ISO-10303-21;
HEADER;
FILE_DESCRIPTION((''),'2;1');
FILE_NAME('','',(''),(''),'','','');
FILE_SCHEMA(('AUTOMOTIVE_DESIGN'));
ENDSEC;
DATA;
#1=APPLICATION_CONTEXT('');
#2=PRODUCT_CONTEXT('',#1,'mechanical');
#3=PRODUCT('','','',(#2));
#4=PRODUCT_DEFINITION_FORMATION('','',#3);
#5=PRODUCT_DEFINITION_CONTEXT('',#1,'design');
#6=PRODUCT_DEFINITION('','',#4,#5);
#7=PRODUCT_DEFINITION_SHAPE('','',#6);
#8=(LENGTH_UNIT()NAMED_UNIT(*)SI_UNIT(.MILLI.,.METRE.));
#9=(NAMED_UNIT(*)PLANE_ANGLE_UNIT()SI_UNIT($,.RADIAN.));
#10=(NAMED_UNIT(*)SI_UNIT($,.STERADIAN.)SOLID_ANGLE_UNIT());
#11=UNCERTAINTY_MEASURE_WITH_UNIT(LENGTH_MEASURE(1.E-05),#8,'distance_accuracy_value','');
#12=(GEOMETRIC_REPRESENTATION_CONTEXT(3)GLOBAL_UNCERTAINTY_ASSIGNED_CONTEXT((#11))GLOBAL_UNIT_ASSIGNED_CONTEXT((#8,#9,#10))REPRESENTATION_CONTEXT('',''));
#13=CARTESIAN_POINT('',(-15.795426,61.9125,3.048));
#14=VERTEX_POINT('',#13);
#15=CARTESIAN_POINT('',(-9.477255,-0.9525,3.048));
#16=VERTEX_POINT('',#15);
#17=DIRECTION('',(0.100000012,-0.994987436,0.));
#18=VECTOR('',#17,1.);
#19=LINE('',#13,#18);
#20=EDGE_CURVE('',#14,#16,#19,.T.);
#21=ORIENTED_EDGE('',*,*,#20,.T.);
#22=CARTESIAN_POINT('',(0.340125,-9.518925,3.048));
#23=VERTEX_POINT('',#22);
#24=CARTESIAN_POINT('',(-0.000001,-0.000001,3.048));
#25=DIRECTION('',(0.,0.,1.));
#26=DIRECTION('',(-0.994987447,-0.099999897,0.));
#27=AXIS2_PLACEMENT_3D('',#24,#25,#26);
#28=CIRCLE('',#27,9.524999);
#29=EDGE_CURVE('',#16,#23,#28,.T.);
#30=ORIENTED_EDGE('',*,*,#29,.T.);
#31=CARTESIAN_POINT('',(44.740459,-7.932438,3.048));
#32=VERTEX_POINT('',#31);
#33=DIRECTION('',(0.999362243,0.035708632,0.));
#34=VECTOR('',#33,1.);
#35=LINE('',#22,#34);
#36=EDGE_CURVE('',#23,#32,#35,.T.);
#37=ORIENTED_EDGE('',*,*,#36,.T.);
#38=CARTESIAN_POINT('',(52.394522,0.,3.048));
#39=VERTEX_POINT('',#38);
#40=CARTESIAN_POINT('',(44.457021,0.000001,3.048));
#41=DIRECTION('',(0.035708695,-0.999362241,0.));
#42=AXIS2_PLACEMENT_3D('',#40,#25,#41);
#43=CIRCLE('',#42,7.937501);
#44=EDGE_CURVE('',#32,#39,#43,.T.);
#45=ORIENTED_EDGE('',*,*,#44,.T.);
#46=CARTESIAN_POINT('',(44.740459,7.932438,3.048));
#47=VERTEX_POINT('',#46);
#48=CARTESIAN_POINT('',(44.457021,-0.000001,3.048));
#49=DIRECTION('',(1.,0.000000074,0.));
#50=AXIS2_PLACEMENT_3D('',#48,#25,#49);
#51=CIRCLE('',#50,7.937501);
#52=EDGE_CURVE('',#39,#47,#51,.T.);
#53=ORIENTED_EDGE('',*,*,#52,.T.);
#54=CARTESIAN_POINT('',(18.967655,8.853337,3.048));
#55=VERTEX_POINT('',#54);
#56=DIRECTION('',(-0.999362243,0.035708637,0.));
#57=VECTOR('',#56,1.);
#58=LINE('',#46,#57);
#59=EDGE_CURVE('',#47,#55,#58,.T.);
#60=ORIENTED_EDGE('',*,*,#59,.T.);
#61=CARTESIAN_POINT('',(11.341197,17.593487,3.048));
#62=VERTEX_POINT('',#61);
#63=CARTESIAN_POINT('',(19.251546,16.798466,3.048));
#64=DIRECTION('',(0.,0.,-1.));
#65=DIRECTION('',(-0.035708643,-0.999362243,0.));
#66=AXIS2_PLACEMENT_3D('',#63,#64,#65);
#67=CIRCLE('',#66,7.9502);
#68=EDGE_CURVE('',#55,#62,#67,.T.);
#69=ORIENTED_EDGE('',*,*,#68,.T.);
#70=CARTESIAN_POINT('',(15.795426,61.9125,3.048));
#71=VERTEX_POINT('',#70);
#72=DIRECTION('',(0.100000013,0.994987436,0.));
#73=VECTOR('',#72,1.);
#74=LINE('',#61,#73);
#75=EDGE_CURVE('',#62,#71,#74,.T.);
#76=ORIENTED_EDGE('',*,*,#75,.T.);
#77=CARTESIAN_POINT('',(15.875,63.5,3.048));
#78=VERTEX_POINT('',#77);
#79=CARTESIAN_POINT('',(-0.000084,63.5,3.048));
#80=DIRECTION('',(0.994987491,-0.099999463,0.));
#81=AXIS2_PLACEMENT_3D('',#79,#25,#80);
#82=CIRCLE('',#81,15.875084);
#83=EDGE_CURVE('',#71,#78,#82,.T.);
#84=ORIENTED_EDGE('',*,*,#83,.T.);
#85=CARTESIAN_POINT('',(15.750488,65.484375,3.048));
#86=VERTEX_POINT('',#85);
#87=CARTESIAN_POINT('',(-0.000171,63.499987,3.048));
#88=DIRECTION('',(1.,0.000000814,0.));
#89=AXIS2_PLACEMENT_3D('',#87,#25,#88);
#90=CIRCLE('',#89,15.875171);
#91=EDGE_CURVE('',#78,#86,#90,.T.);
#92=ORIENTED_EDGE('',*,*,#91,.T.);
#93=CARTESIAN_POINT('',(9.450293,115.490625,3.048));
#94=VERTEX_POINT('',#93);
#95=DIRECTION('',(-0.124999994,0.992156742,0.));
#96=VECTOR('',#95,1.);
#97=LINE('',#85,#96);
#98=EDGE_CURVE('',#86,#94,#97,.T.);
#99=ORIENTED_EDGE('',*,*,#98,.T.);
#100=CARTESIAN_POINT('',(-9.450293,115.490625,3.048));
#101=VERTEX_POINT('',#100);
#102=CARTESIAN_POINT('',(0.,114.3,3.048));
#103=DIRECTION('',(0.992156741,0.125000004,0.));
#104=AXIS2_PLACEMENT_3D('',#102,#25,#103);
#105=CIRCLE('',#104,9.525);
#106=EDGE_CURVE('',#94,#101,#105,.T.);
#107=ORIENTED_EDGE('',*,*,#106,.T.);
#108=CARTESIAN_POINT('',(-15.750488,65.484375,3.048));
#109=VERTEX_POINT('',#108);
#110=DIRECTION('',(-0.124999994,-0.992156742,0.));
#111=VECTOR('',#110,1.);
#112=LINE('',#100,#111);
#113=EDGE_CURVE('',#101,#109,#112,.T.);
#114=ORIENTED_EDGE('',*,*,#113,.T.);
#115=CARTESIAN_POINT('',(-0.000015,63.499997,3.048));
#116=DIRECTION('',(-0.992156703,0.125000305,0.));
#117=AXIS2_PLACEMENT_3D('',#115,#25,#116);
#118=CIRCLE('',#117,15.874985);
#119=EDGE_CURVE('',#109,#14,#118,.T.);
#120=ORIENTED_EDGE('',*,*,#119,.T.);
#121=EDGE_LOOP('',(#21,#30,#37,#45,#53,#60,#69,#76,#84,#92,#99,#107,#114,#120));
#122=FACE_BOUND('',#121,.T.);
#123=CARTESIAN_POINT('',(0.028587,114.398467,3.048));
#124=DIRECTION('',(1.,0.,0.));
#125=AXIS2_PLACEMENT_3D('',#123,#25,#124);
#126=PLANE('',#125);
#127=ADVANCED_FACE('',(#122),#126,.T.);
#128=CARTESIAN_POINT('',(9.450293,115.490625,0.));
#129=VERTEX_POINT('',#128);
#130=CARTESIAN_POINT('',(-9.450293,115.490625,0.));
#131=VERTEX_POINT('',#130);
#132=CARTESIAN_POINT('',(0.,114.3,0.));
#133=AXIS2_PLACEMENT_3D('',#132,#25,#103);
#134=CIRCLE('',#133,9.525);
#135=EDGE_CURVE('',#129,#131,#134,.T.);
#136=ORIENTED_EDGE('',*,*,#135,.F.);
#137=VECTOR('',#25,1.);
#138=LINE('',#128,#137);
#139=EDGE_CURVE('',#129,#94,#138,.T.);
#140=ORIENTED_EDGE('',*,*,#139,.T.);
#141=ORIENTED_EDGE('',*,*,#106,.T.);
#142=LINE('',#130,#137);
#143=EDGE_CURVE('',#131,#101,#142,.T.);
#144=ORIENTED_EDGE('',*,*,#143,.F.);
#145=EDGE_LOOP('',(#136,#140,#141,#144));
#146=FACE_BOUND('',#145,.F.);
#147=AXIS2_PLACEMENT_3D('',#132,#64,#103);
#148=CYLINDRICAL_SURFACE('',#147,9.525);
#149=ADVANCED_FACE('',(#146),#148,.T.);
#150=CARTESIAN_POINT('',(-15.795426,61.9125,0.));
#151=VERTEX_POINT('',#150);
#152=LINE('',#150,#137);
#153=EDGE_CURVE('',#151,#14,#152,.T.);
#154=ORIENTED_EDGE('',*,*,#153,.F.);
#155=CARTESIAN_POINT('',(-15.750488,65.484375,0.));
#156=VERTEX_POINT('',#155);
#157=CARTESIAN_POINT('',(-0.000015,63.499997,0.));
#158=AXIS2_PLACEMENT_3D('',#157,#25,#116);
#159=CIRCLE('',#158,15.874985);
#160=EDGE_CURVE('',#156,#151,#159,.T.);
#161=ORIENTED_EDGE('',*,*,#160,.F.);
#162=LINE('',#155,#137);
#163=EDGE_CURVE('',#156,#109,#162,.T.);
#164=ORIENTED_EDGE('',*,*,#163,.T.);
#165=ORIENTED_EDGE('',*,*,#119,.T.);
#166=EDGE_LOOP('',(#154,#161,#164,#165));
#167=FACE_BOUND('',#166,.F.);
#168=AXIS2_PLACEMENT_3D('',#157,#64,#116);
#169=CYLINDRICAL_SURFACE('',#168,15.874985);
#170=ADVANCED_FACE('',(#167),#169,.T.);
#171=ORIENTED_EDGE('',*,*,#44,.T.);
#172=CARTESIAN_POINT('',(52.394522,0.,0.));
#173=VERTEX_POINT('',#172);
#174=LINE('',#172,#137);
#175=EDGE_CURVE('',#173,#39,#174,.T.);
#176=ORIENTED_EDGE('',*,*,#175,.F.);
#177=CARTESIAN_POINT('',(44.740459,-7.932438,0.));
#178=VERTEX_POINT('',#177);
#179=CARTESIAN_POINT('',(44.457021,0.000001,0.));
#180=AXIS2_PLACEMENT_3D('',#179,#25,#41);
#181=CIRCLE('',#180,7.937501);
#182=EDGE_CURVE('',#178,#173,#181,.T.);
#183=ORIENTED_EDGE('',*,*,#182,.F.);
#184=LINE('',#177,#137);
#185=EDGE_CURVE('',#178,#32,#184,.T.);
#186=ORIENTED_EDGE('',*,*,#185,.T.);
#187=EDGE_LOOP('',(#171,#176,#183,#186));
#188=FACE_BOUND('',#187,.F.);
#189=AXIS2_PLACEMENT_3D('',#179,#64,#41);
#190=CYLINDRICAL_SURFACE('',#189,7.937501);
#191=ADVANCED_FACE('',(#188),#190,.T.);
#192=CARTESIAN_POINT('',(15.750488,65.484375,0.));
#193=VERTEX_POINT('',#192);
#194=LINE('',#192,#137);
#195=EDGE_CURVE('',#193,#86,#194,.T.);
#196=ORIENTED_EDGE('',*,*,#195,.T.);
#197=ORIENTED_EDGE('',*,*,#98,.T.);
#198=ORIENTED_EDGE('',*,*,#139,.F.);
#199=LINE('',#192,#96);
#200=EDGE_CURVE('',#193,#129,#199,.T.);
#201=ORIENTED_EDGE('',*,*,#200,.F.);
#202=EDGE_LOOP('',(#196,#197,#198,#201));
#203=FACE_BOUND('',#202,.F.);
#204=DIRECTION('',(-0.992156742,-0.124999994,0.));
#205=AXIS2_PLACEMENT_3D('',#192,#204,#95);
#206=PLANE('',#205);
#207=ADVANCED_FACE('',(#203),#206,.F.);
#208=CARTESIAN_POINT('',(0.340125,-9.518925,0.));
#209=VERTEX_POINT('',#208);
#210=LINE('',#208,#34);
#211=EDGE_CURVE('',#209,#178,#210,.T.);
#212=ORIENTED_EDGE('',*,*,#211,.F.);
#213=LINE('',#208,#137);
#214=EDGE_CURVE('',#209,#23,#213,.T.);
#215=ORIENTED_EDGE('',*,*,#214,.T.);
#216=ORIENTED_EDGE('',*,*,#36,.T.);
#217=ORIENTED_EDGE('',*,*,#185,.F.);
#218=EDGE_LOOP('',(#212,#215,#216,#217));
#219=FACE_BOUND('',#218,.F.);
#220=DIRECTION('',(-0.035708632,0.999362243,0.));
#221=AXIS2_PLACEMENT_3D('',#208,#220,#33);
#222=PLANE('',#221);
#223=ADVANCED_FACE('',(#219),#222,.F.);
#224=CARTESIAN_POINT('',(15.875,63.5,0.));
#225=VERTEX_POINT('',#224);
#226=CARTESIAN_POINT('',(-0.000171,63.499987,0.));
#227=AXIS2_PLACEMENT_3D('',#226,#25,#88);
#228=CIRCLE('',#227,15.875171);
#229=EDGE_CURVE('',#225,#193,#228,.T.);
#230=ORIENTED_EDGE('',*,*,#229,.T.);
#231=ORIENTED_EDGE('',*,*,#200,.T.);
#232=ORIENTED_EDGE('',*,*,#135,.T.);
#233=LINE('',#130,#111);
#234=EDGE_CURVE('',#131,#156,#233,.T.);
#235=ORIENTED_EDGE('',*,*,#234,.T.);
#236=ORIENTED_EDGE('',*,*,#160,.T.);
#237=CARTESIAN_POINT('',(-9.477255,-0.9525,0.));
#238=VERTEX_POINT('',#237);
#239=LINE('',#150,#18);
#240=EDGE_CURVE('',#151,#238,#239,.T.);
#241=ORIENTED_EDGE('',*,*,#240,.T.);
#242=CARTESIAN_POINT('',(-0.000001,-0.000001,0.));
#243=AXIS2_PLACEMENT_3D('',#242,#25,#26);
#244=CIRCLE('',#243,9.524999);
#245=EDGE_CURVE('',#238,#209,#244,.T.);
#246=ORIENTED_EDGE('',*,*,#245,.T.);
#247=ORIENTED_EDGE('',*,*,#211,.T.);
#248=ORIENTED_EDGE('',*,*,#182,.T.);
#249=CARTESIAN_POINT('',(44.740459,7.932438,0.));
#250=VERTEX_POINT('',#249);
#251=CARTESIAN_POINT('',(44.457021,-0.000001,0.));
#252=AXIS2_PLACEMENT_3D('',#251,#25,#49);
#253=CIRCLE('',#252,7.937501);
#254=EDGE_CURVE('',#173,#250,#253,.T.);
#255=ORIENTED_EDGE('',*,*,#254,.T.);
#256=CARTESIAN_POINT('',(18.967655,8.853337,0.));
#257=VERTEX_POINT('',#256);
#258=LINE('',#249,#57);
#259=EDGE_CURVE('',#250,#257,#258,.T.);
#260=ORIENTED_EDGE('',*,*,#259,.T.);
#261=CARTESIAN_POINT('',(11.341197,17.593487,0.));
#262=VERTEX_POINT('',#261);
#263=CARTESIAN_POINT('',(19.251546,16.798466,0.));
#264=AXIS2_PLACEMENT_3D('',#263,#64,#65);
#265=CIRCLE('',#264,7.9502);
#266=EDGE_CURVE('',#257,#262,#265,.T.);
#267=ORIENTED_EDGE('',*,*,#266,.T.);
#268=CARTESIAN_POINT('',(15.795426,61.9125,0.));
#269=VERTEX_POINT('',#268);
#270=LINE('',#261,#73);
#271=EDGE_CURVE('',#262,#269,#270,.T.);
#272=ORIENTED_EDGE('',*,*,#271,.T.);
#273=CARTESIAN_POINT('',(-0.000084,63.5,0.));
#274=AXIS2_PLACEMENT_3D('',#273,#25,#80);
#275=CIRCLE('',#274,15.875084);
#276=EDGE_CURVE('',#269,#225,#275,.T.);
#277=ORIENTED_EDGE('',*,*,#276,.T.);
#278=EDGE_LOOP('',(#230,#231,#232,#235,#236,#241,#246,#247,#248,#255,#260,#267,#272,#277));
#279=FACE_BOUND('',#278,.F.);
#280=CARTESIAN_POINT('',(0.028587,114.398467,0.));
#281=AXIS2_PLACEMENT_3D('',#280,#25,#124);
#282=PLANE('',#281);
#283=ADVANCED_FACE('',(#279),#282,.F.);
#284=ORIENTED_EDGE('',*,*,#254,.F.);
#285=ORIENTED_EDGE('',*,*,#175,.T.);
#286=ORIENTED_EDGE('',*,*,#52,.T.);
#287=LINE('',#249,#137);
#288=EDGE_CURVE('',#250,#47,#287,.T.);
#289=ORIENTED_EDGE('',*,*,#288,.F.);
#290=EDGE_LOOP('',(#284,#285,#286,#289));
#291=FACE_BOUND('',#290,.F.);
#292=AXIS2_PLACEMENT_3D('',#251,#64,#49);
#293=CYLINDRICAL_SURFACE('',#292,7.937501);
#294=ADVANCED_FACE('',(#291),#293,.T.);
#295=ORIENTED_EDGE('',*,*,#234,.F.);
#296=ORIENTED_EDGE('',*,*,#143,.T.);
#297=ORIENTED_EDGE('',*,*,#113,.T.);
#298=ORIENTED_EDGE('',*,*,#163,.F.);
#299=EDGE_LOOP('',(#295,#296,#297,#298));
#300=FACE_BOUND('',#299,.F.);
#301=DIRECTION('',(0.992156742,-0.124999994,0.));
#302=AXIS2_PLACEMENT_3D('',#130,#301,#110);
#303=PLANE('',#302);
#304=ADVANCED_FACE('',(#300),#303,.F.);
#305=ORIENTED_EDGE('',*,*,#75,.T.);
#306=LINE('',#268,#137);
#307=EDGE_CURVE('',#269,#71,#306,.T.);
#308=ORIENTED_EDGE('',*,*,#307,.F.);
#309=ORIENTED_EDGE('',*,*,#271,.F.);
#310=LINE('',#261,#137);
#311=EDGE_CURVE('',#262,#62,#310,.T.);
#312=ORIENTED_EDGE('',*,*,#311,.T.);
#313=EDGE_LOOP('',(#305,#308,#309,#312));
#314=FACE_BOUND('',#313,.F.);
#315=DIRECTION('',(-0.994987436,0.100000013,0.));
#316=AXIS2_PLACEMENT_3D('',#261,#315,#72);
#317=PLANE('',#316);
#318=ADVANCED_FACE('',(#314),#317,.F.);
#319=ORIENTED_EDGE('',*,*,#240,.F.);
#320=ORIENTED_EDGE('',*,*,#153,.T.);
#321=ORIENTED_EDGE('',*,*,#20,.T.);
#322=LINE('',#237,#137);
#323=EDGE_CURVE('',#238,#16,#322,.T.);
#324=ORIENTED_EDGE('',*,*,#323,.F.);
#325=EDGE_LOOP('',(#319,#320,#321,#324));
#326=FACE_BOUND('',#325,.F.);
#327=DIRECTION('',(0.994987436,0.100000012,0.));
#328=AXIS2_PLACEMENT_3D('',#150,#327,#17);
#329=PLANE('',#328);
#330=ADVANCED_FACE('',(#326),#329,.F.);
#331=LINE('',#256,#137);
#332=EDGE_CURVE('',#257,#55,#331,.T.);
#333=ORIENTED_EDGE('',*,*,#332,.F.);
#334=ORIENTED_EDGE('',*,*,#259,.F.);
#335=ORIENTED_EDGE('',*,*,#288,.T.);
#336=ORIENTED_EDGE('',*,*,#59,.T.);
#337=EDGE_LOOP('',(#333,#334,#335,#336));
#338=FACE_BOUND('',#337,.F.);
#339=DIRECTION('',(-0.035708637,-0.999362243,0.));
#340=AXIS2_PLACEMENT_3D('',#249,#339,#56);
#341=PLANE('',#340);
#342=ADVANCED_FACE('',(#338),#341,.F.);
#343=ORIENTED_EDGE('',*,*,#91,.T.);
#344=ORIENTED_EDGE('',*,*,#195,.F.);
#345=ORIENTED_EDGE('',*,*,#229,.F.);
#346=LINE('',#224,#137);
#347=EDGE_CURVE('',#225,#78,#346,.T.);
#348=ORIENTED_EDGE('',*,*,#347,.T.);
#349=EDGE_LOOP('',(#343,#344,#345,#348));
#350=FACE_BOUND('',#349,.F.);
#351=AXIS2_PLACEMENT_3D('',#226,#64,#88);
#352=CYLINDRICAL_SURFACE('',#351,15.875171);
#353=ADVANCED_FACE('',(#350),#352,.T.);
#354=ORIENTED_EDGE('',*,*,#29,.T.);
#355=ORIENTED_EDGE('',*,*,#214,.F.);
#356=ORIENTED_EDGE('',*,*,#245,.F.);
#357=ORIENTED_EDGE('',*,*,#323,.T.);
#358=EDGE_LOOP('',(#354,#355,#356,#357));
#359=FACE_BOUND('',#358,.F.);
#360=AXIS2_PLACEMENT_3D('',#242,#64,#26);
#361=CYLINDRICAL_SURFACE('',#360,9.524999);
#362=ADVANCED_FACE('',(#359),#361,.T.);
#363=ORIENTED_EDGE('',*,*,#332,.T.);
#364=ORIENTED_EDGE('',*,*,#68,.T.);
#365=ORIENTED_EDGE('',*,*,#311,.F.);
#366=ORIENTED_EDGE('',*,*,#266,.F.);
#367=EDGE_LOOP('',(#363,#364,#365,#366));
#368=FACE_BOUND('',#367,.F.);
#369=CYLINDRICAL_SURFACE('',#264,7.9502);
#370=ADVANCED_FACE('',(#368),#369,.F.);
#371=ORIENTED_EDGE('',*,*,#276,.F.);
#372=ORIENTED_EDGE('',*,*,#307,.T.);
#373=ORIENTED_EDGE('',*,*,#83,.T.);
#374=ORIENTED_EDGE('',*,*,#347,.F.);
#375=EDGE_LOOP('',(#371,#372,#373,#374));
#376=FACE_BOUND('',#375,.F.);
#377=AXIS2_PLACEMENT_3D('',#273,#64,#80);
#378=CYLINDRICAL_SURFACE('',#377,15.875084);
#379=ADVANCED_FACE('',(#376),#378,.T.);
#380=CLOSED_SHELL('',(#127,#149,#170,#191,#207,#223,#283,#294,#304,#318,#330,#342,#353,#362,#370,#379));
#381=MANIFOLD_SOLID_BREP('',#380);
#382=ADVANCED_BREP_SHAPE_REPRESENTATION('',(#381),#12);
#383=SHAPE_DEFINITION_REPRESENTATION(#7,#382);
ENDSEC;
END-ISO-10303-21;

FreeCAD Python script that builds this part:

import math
import FreeCAD as App
import Part
import Sketcher
from FreeCAD import Vector
Q = App.Units.Quantity

doc = App.newDocument("Part")
body = doc.addObject("PartDesign::Body", "Body")

# Sketch on XY plane
sketch1 = doc.addObject("Sketcher::SketchObject", "Sketch")
body.addObject(sketch1)
sketch1.AttachmentSupport = (doc.XY_Plane, [""])
sketch1.MapMode = "FlatFace"
sketch1.addGeometry([
    Part.ArcOfCircle(Part.Circle(Vector(0, 114.3, 0), Vector(0, 0, 1), 9.525), math.radians(7.180756), math.radians(172.819244)),  # 0
    Part.LineSegment(Vector(-9.450293, 115.490625, 0), Vector(-15.750488, 65.484375, 0)),  # 1
    Part.ArcOfCircle(Part.Circle(Vector(-0.000015, 63.499997, 0), Vector(0, 0, 1), 15.874985), math.radians(172.819227), math.radians(185.739165)),  # 2
    Part.LineSegment(Vector(-15.795426, 61.9125, 0), Vector(-9.477255, -0.9525, 0)),  # 3
    Part.ArcOfCircle(Part.Circle(Vector(-0.000001, -0.000001, 0), Vector(0, 0, 1), 9.524999), math.radians(-174.260835), math.radians(-87.953603)),  # 4
    Part.LineSegment(Vector(0.340125, -9.518925, 0), Vector(44.740459, -7.932438, 0)),  # 5
    Part.ArcOfCircle(Part.Circle(Vector(44.457021, 0.000001, 0), Vector(0, 0, 1), 7.937501), math.radians(-87.953607), math.radians(-0.000004)),  # 6
    Part.ArcOfCircle(Part.Circle(Vector(44.457021, -0.000001, 0), Vector(0, 0, 1), 7.937501), math.radians(0.000004), math.radians(87.953607)),  # 7
    Part.LineSegment(Vector(44.740459, 7.932438, 0), Vector(18.967655, 8.853337, 0)),  # 8
    Part.ArcOfCircle(Part.Circle(Vector(19.251546, 16.798466, 0), Vector(0, 0, 1), 7.9502), math.radians(174.260826), math.radians(267.95361)),  # 9
    Part.LineSegment(Vector(11.341197, 17.593487, 0), Vector(15.795426, 61.9125, 0)),  # 10
    Part.ArcOfCircle(Part.Circle(Vector(-0.000084, 63.5, 0), Vector(0, 0, 1), 15.875084), math.radians(-5.73914), math.radians(0)),  # 11
    Part.ArcOfCircle(Part.Circle(Vector(-0.000171, 63.499987, 0), Vector(0, 0, 1), 15.875171), math.radians(0.000047), math.radians(7.180725)),  # 12
    Part.LineSegment(Vector(15.750488, 65.484375, 0), Vector(9.450293, 115.490625, 0)),  # 13
], False)
sketch1.addConstraint([
    Sketcher.Constraint("Coincident", 0, 2, 1, 1),
    Sketcher.Constraint("Coincident", 1, 2, 2, 1),
    Sketcher.Constraint("Coincident", 2, 2, 3, 1),
    Sketcher.Constraint("Coincident", 3, 2, 4, 1),
    Sketcher.Constraint("Coincident", 4, 2, 5, 1),
    Sketcher.Constraint("Coincident", 5, 2, 6, 1),
    Sketcher.Constraint("Coincident", 6, 2, 7, 1),
    Sketcher.Constraint("Coincident", 7, 2, 8, 1),
    Sketcher.Constraint("Coincident", 8, 2, 9, 2),
    Sketcher.Constraint("Coincident", 9, 1, 10, 1),
    Sketcher.Constraint("Coincident", 10, 2, 11, 1),
    Sketcher.Constraint("Coincident", 11, 2, 12, 1),
    Sketcher.Constraint("Coincident", 12, 2, 13, 1),
    Sketcher.Constraint("Coincident", 13, 2, 0, 1),
    Sketcher.Constraint("Coincident", 4, 3, -1, 1),
    Sketcher.Constraint("Coincident", 7, 3, 6, 3),
    Sketcher.Constraint("PointOnObject", 0, 3, -2),
    Sketcher.Constraint("PointOnObject", 6, 3, -1),
    Sketcher.Constraint("PointOnObject", 6, 2, -1),
    Sketcher.Constraint("Radius", 0, Q("0.375 in")),
    Sketcher.Constraint("Radius", 4, Q("0.3749999 in")),
    Sketcher.Constraint("Radius", 6, Q("0.3125 in")),
    Sketcher.Constraint("Radius", 9, Q("0.313 in")),
    Sketcher.Constraint("DistanceY", 2, 3, 0, 3, Q("2.0000001 in")),
    Sketcher.Constraint("DistanceY", 11, 3, 0, 3, Q("2 in")),
    Sketcher.Constraint("DistanceY", -1, 1, 0, 3, Q("4.5 in")),
    Sketcher.Constraint("DistanceY", -1, 1, 11, 2, Q("2.5 in")),
    Sketcher.Constraint("DistanceY", -1, 1, 0, 2, Q("4.546875 in")),
    Sketcher.Constraint("DistanceY", -1, 1, 1, 2, Q("2.578125 in")),
    Sketcher.Constraint("DistanceY", -1, 1, 2, 2, Q("2.4375 in")),
    Sketcher.Constraint("DistanceY", -1, 1, 10, 2, Q("2.4375 in")),
    Sketcher.Constraint("DistanceX", -1, 1, 11, 2, Q("0.625 in")),
    Sketcher.Constraint("DistanceY", -1, 1, 12, 2, Q("2.578125 in")),
    Sketcher.Constraint("DistanceY", -1, 1, 13, 2, Q("4.546875 in")),
    Sketcher.Constraint("Radius", 12, 15.875171),
    Sketcher.Constraint("DistanceY", 3, 2, 2, 2, Q("2.475 in")),
    Sketcher.Constraint("Radius", 2, 15.874985),
    Sketcher.Constraint("Radius", 11, 15.875084),
    Sketcher.Constraint("DistanceY", 9, 3, 9, 1, Q("0.0313 in")),
    Sketcher.Constraint("DistanceX", 3, 2, 9, 3, 28.728801),
    Sketcher.Constraint("DistanceY", 7, 2, 8, 2, 0.920899),
    Sketcher.Constraint("Distance", 5, 44.428669),
    Sketcher.Constraint("Distance", 8, 25.789251),
    Sketcher.Constraint("DistanceX", -1, 1, 6, 3, 44.457021),
    Sketcher.Constraint("DistanceX", 1, 2, -1, 1, 15.750488),
    Sketcher.Constraint("DistanceX", -1, 1, 5, 2, 44.740459),
    Sketcher.Constraint("DistanceX", -1, 1, 7, 2, 44.740459),
    Sketcher.Constraint("DistanceX", -1, 1, 12, 2, 15.750488),
])
pad1 = doc.addObject("PartDesign::Pad", "Pad")
body.addObject(pad1)
pad1.Profile = sketch1
pad1.Length = Q("0.12 in")

doc.recompute()
